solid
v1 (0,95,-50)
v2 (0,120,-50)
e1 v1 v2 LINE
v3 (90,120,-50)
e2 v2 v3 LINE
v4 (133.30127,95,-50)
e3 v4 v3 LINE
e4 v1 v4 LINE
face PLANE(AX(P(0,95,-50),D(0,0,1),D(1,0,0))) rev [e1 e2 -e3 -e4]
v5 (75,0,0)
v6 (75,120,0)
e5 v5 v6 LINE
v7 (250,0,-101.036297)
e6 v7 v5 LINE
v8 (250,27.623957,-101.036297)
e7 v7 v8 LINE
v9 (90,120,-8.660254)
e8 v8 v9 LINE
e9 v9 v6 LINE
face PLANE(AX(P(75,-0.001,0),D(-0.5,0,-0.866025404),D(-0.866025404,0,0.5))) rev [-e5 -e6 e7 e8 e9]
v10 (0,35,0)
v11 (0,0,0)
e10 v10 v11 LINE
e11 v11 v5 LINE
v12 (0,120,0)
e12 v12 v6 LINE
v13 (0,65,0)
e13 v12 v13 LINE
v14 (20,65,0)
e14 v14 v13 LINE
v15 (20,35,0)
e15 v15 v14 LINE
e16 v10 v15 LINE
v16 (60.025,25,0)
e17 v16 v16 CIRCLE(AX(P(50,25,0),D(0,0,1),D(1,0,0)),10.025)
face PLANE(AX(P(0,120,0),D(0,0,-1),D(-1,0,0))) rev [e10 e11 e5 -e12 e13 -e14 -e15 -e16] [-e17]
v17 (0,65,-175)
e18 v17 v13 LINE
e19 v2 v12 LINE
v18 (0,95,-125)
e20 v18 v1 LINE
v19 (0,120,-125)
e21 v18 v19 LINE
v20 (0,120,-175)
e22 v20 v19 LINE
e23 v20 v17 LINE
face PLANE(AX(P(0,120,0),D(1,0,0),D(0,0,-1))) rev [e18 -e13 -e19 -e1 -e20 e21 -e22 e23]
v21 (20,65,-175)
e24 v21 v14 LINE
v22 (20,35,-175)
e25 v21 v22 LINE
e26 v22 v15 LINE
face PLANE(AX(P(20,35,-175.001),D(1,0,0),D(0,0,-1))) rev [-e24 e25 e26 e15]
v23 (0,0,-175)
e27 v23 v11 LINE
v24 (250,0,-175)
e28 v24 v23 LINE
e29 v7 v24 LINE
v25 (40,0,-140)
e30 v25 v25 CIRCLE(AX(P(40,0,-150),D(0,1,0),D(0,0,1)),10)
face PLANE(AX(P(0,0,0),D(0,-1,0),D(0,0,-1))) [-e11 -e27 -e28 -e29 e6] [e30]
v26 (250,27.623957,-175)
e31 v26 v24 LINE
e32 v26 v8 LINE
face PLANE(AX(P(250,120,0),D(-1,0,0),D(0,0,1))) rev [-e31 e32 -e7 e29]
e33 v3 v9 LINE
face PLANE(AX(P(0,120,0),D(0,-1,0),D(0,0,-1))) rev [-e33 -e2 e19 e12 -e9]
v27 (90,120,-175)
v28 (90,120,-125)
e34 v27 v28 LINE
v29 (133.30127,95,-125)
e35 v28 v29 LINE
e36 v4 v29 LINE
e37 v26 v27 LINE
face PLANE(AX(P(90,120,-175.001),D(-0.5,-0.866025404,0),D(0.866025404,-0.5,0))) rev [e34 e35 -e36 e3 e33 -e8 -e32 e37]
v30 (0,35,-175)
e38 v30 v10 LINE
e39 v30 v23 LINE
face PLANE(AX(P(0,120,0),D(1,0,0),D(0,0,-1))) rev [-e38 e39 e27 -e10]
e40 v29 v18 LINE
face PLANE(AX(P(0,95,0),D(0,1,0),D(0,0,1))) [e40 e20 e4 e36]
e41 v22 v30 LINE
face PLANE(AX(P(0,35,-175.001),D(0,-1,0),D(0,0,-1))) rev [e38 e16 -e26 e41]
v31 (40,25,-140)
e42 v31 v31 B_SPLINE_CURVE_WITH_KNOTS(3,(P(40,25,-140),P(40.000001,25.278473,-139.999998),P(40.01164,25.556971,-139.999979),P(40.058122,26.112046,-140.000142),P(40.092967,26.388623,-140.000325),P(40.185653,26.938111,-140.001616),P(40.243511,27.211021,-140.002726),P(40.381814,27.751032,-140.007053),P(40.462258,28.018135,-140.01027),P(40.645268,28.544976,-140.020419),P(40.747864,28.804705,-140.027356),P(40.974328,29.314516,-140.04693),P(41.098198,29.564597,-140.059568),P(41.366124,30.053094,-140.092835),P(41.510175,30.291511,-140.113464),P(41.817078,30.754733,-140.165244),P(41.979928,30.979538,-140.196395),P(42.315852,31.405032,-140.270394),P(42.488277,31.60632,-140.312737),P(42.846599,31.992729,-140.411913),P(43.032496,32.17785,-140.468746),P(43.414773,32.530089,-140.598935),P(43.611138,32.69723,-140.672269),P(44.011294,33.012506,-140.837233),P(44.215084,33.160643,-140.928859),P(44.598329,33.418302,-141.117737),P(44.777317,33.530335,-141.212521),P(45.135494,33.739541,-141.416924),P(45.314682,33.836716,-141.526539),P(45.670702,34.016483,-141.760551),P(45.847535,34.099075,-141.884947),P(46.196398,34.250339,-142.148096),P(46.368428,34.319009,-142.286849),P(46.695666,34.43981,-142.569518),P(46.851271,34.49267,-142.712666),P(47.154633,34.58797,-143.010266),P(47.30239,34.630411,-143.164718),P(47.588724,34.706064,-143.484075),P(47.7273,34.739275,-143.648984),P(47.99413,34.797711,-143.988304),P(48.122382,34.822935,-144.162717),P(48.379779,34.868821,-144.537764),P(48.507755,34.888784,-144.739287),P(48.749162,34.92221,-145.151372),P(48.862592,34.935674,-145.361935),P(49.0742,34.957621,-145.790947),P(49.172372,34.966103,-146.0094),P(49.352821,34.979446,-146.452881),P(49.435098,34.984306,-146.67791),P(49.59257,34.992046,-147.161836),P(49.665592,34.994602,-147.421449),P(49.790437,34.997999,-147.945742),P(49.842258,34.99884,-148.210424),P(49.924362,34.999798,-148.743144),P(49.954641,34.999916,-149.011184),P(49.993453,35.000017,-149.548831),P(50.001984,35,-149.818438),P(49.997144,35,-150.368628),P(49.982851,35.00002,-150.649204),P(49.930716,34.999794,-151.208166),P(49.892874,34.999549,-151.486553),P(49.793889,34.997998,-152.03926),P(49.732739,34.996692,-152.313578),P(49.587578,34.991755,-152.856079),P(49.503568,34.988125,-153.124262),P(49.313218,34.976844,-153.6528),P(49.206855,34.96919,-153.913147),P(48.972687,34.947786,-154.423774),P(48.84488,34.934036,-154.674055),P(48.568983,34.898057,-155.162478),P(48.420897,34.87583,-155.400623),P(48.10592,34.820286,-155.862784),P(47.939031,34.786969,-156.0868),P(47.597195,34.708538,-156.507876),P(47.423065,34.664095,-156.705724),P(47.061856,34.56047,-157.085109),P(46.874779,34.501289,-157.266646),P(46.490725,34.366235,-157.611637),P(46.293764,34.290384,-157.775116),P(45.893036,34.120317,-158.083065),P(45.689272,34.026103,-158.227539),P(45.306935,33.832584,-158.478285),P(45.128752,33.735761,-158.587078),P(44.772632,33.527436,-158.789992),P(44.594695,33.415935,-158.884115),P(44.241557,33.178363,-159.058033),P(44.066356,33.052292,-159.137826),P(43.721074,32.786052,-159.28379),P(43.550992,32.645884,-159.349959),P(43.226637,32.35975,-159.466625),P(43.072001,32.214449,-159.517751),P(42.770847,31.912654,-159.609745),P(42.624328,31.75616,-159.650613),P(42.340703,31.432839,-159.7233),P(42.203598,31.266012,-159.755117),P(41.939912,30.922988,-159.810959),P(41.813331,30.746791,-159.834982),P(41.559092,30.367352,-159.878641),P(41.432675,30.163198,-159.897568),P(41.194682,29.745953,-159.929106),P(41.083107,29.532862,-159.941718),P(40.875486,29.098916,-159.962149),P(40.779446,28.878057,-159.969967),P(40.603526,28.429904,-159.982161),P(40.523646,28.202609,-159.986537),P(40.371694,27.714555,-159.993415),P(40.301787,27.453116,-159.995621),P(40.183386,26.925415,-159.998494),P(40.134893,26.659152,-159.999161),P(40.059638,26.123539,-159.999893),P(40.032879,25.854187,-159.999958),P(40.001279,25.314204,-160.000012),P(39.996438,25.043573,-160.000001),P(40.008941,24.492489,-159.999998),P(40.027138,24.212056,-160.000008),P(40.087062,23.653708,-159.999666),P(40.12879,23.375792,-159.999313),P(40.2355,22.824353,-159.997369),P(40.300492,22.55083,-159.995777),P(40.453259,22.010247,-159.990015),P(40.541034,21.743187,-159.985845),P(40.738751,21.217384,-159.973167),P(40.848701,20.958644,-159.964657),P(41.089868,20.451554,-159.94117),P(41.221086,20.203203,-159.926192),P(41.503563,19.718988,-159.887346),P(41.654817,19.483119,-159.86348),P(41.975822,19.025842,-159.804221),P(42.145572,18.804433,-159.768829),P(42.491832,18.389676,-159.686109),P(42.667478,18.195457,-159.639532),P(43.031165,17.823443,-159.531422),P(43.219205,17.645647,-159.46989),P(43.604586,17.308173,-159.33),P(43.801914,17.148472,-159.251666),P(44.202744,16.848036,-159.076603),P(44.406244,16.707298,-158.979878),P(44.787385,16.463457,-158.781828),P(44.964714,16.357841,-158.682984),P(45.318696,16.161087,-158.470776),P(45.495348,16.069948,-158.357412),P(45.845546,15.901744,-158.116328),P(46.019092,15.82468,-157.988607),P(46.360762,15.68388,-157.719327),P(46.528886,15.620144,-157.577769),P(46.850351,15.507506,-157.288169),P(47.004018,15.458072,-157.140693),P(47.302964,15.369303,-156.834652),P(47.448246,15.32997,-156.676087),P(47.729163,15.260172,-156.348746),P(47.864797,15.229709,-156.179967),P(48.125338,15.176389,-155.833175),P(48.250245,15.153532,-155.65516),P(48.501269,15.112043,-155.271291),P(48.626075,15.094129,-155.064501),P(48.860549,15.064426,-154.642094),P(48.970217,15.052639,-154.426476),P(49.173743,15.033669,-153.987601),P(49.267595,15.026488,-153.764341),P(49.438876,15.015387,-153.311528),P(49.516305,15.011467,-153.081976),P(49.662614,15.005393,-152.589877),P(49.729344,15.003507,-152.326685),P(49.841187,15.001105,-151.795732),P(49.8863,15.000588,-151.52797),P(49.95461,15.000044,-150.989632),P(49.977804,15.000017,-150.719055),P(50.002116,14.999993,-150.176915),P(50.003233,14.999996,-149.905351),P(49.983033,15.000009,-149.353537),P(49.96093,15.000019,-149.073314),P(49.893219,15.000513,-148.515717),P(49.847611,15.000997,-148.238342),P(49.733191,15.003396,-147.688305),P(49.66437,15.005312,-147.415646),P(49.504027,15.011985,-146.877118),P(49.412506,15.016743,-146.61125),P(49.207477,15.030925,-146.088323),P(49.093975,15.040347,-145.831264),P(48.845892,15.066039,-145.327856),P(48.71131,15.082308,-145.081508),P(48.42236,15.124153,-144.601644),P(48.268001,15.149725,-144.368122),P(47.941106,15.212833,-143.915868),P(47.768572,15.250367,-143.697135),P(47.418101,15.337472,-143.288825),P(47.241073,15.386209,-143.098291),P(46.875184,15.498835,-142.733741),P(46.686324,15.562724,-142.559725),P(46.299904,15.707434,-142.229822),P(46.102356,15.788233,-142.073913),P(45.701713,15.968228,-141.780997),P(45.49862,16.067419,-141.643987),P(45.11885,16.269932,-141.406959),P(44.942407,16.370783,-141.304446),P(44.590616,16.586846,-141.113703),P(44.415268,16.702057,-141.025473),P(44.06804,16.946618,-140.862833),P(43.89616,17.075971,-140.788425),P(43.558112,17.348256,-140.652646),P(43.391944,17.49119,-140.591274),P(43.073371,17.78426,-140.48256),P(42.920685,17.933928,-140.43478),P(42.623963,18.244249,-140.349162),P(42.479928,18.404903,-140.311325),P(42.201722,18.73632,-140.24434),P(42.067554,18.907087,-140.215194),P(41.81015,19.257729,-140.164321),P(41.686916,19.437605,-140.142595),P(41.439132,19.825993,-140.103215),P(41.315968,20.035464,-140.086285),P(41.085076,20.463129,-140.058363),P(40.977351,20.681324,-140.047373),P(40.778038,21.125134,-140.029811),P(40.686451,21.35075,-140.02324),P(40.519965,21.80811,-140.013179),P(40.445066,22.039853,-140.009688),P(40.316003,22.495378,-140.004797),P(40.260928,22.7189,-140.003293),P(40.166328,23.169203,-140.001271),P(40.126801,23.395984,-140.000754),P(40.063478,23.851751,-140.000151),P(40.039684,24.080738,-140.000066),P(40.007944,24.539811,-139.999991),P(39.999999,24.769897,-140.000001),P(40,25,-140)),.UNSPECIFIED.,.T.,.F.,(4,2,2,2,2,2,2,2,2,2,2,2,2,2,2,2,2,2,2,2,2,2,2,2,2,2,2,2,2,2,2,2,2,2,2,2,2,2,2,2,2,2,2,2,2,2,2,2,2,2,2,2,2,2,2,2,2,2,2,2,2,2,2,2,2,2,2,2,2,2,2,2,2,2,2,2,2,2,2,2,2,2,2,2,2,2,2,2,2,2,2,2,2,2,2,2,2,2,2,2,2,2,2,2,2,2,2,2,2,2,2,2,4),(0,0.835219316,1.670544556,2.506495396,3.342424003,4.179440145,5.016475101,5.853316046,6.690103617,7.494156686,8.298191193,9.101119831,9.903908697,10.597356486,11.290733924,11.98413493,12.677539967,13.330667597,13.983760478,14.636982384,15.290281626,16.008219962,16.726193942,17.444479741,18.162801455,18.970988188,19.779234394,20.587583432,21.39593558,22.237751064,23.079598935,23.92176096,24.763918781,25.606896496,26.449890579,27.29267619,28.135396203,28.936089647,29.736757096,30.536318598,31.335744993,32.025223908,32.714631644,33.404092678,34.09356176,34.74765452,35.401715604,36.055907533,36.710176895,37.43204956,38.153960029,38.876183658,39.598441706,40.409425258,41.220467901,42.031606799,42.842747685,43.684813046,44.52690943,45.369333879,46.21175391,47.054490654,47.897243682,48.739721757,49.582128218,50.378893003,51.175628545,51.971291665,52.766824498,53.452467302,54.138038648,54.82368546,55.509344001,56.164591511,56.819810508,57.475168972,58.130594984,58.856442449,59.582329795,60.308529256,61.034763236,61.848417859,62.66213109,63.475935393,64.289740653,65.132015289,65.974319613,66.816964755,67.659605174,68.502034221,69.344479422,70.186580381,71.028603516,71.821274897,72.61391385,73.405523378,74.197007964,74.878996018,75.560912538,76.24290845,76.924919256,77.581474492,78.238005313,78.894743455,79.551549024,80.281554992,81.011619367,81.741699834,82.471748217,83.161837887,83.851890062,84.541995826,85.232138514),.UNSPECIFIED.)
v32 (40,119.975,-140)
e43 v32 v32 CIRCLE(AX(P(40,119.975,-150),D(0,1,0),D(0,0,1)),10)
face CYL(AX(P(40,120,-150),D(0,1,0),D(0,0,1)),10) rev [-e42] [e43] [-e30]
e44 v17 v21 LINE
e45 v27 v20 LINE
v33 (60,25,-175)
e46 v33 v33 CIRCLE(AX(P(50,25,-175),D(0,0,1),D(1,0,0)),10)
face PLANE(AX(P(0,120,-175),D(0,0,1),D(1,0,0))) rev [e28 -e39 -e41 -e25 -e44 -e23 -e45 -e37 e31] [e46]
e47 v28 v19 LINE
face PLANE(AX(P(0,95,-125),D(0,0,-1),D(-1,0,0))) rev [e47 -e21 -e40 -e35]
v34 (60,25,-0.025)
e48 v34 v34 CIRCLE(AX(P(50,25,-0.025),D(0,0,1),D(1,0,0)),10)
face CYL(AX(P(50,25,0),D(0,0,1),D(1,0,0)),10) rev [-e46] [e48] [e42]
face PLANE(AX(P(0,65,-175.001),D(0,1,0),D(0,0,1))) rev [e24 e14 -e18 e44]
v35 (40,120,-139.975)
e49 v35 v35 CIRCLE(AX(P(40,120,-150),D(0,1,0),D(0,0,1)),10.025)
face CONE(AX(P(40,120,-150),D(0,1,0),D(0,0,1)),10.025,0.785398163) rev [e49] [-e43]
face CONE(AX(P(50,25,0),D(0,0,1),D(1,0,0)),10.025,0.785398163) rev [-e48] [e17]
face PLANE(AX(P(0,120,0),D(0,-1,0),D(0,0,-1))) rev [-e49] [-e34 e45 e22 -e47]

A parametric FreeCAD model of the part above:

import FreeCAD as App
import Part
import Sketcher

V = App.Vector
Q = App.Units.Quantity

doc = App.newDocument("Part")
body = doc.addObject("PartDesign::Body", "Body")

# Sketch on XZ plane
sketch1 = body.newObject("Sketcher::SketchObject", "Sketch")
sketch1.AttachmentSupport = (doc.getObject("XZ_Plane"), [""])
sketch1.MapMode = "FlatFace"
sketch1.addGeometry([
    Part.LineSegment(V(0, -175, 0), V(0, 0, 0)),
    Part.LineSegment(V(0, 0, 0), V(250, 0, 0)),
    Part.LineSegment(V(250, 0, 0), V(250, -175, 0)),
    Part.LineSegment(V(250, -175, 0), V(0, -175, 0)),
], False)
sketch1.addConstraint([
    Sketcher.Constraint("Coincident", 0, 2, 1, 1),
    Sketcher.Constraint("Coincident", 1, 2, 2, 1),
    Sketcher.Constraint("Coincident", 2, 2, 3, 1),
    Sketcher.Constraint("Coincident", 3, 2, 0, 1),
    Sketcher.Constraint("Vertical", 0),
    Sketcher.Constraint("Horizontal", 1),
    Sketcher.Constraint("Vertical", 2),
    Sketcher.Constraint("Horizontal", 3),
    Sketcher.Constraint("Coincident", 0, 2, -1, 1),
    Sketcher.Constraint("DistanceX", 1, 1, 1, 2, Q("250 mm")),
    Sketcher.Constraint("DistanceY", 0, 1, 0, 2, Q("175 mm")),
])
pad1 = body.newObject("PartDesign::Pad", "Pad")
pad1.Profile = sketch1
pad1.Length = 120
pad1.Reversed = True

# Sketch on XZ plane
sketch2 = body.newObject("Sketcher::SketchObject", "Sketch001")
sketch2.AttachmentSupport = (doc.getObject("XZ_Plane"), [""])
sketch2.MapMode = "FlatFace"
sketch2.AttachmentOffset = App.Placement(V(0, 0, -120), App.Rotation())
sketch2.addGeometry([
    Part.LineSegment(V(0, -125, 0), V(0, -50, 0)),
    Part.LineSegment(V(0, -50, 0), V(250, -50, 0)),
    Part.LineSegment(V(250, -50, 0), V(250, -125, 0)),
    Part.LineSegment(V(250, -125, 0), V(0, -125, 0)),
], False)
sketch2.addConstraint([
    Sketcher.Constraint("Coincident", 0, 2, 1, 1),
    Sketcher.Constraint("Coincident", 1, 2, 2, 1),
    Sketcher.Constraint("Coincident", 2, 2, 3, 1),
    Sketcher.Constraint("Coincident", 3, 2, 0, 1),
    Sketcher.Constraint("Vertical", 0),
    Sketcher.Constraint("Horizontal", 1),
    Sketcher.Constraint("Vertical", 2),
    Sketcher.Constraint("Horizontal", 3),
    Sketcher.Constraint("PointOnObject", 0, 2, -2),
    Sketcher.Constraint("DistanceX", 1, 1, 1, 2, Q("250 mm")),
    Sketcher.Constraint("DistanceY", 0, 1, 0, 2, Q("75 mm")),
    Sketcher.Constraint("DistanceY", 0, 2, -1, 1, Q("50 mm")),
])
pocket1 = body.newObject("PartDesign::Pocket", "Pocket")
pocket1.Profile = sketch2
pocket1.Length = 25
pocket1.Reversed = True

# Sketch on XY plane
sketch3 = body.newObject("Sketcher::SketchObject", "Sketch002")
sketch3.AttachmentSupport = (doc.getObject("XY_Plane"), [""])
sketch3.MapMode = "FlatFace"
sketch3.addGeometry([
    Part.LineSegment(V(0, 65, 0), V(0, 35, 0)),
    Part.LineSegment(V(0, 35, 0), V(20, 35, 0)),
    Part.LineSegment(V(20, 35, 0), V(20, 65, 0)),
    Part.LineSegment(V(20, 65, 0), V(0, 65, 0)),
], False)
sketch3.addConstraint([
    Sketcher.Constraint("Coincident", 0, 2, 1, 1),
    Sketcher.Constraint("Coincident", 1, 2, 2, 1),
    Sketcher.Constraint("Coincident", 2, 2, 3, 1),
    Sketcher.Constraint("Coincident", 3, 2, 0, 1),
    Sketcher.Constraint("Vertical", 0),
    Sketcher.Constraint("Horizontal", 1),
    Sketcher.Constraint("Vertical", 2),
    Sketcher.Constraint("Horizontal", 3),
    Sketcher.Constraint("PointOnObject", 0, 2, -2),
    Sketcher.Constraint("DistanceX", 1, 1, 1, 2, Q("20 mm")),
    Sketcher.Constraint("DistanceY", 0, 2, 0, 1, Q("30 mm")),
    Sketcher.Constraint("DistanceY", -1, 1, 0, 2, Q("35 mm")),
])
pocket2 = body.newObject("PartDesign::Pocket", "Pocket001")
pocket2.Profile = sketch3
pocket2.Type = "UpToFirst"

# Sketch on XY plane
sketch4 = body.newObject("Sketcher::SketchObject", "Sketch003")
sketch4.AttachmentSupport = (doc.getObject("XY_Plane"), [""])
sketch4.MapMode = "FlatFace"
sketch4.addGeometry(Part.Circle(V(50, 25, 0), V(0, 0, 1), 10), False)
sketch4.addConstraint([
    Sketcher.Constraint("Diameter", 0, Q("20 mm")),
    Sketcher.Constraint("DistanceX", -1, 1, 0, 3, Q("50 mm")),
    Sketcher.Constraint("DistanceY", -1, 1, 0, 3, Q("25 mm")),
])
doc.recompute()
hole = body.newObject("PartDesign::Hole", "Hole")
hole.Profile = sketch4
hole.ThreadType = "None"
hole.Diameter = 20
hole.DepthType = "ThroughAll"
hole.HoleCutType = "Countersink"
hole.HoleCutDiameter = 20.05
hole.HoleCutCountersinkAngle = 90

# Sketch on XZ plane
sketch5 = body.newObject("Sketcher::SketchObject", "Sketch004")
sketch5.AttachmentSupport = (doc.getObject("XZ_Plane"), [""])
sketch5.MapMode = "FlatFace"
sketch5.AttachmentOffset = App.Placement(V(0, 0, -120), App.Rotation())
sketch5.addGeometry(Part.Circle(V(40, -150, 0), V(0, 0, 1), 10), False)
sketch5.addConstraint([
    Sketcher.Constraint("Diameter", 0, Q("20 mm")),
    Sketcher.Constraint("DistanceX", -1, 1, 0, 3, Q("40 mm")),
    Sketcher.Constraint("DistanceY", 0, 3, -1, 1, Q("150 mm")),
])
doc.recompute()
hole2 = body.newObject("PartDesign::Hole", "Hole001")
hole2.Profile = sketch5
hole2.ThreadType = "None"
hole2.Diameter = 20
hole2.DepthType = "ThroughAll"
hole2.HoleCutType = "Countersink"
hole2.HoleCutDiameter = 20.05
hole2.HoleCutCountersinkAngle = 90
hole2.Reversed = True

# Sketch on XY plane
sketch6 = body.newObject("Sketcher::SketchObject", "Sketch005")
sketch6.AttachmentSupport = (doc.getObject("XY_Plane"), [""])
sketch6.MapMode = "FlatFace"
sketch6.addGeometry([
    Part.LineSegment(V(90, 120, 0), V(250, 27.623957, 0)),
    Part.LineSegment(V(250, 27.623957, 0), V(250, 120, 0)),
    Part.LineSegment(V(250, 120, 0), V(90, 120, 0)),
], False)
sketch6.addConstraint([
    Sketcher.Constraint("Coincident", 0, 2, 1, 1),
    Sketcher.Constraint("Coincident", 1, 2, 2, 1),
    Sketcher.Constraint("Coincident", 2, 2, 0, 1),
    Sketcher.Constraint("Vertical", 1),
    Sketcher.Constraint("Horizontal", 2),
    Sketcher.Constraint("DistanceX", 2, 2, 2, 1, Q("160 mm")),
    Sketcher.Constraint("Angle", 0, Q("-30 deg")),
    Sketcher.Constraint("DistanceX", -1, 1, 0, 2, Q("250 mm")),
    Sketcher.Constraint("DistanceY", -1, 1, 1, 2, Q("120 mm")),
])
pocket3 = body.newObject("PartDesign::Pocket", "Pocket002")
pocket3.Profile = sketch6
pocket3.Type = "UpToFirst"

# Sketch on XZ plane
sketch7 = body.newObject("Sketcher::SketchObject", "Sketch006")
sketch7.AttachmentSupport = (doc.getObject("XZ_Plane"), [""])
sketch7.MapMode = "FlatFace"
sketch7.AttachmentOffset = App.Placement(V(0, 0, -120), App.Rotation())
sketch7.addGeometry([
    Part.LineSegment(V(250, -101.036297, 0), V(75, 0, 0)),
    Part.LineSegment(V(75, 0, 0), V(250, 0, 0)),
    Part.LineSegment(V(250, 0, 0), V(250, -101.036297, 0)),
], False)
sketch7.addConstraint([
    Sketcher.Constraint("Coincident", 0, 2, 1, 1),
    Sketcher.Constraint("Coincident", 1, 2, 2, 1),
    Sketcher.Constraint("Coincident", 2, 2, 0, 1),
    Sketcher.Constraint("Horizontal", 1),
    Sketcher.Constraint("Vertical", 2),
    Sketcher.Constraint("PointOnObject", 0, 2, -1),
    Sketcher.Constraint("DistanceX", 1, 1, 1, 2, Q("175 mm")),
    Sketcher.Constraint("Angle", 0, Q("150 deg")),
    Sketcher.Constraint("DistanceX", -1, 1, 0, 2, Q("75 mm")),
])
pocket4 = body.newObject("PartDesign::Pocket", "Pocket003")
pocket4.Profile = sketch7
pocket4.Length = 120
pocket4.Reversed = True

doc.recompute()
